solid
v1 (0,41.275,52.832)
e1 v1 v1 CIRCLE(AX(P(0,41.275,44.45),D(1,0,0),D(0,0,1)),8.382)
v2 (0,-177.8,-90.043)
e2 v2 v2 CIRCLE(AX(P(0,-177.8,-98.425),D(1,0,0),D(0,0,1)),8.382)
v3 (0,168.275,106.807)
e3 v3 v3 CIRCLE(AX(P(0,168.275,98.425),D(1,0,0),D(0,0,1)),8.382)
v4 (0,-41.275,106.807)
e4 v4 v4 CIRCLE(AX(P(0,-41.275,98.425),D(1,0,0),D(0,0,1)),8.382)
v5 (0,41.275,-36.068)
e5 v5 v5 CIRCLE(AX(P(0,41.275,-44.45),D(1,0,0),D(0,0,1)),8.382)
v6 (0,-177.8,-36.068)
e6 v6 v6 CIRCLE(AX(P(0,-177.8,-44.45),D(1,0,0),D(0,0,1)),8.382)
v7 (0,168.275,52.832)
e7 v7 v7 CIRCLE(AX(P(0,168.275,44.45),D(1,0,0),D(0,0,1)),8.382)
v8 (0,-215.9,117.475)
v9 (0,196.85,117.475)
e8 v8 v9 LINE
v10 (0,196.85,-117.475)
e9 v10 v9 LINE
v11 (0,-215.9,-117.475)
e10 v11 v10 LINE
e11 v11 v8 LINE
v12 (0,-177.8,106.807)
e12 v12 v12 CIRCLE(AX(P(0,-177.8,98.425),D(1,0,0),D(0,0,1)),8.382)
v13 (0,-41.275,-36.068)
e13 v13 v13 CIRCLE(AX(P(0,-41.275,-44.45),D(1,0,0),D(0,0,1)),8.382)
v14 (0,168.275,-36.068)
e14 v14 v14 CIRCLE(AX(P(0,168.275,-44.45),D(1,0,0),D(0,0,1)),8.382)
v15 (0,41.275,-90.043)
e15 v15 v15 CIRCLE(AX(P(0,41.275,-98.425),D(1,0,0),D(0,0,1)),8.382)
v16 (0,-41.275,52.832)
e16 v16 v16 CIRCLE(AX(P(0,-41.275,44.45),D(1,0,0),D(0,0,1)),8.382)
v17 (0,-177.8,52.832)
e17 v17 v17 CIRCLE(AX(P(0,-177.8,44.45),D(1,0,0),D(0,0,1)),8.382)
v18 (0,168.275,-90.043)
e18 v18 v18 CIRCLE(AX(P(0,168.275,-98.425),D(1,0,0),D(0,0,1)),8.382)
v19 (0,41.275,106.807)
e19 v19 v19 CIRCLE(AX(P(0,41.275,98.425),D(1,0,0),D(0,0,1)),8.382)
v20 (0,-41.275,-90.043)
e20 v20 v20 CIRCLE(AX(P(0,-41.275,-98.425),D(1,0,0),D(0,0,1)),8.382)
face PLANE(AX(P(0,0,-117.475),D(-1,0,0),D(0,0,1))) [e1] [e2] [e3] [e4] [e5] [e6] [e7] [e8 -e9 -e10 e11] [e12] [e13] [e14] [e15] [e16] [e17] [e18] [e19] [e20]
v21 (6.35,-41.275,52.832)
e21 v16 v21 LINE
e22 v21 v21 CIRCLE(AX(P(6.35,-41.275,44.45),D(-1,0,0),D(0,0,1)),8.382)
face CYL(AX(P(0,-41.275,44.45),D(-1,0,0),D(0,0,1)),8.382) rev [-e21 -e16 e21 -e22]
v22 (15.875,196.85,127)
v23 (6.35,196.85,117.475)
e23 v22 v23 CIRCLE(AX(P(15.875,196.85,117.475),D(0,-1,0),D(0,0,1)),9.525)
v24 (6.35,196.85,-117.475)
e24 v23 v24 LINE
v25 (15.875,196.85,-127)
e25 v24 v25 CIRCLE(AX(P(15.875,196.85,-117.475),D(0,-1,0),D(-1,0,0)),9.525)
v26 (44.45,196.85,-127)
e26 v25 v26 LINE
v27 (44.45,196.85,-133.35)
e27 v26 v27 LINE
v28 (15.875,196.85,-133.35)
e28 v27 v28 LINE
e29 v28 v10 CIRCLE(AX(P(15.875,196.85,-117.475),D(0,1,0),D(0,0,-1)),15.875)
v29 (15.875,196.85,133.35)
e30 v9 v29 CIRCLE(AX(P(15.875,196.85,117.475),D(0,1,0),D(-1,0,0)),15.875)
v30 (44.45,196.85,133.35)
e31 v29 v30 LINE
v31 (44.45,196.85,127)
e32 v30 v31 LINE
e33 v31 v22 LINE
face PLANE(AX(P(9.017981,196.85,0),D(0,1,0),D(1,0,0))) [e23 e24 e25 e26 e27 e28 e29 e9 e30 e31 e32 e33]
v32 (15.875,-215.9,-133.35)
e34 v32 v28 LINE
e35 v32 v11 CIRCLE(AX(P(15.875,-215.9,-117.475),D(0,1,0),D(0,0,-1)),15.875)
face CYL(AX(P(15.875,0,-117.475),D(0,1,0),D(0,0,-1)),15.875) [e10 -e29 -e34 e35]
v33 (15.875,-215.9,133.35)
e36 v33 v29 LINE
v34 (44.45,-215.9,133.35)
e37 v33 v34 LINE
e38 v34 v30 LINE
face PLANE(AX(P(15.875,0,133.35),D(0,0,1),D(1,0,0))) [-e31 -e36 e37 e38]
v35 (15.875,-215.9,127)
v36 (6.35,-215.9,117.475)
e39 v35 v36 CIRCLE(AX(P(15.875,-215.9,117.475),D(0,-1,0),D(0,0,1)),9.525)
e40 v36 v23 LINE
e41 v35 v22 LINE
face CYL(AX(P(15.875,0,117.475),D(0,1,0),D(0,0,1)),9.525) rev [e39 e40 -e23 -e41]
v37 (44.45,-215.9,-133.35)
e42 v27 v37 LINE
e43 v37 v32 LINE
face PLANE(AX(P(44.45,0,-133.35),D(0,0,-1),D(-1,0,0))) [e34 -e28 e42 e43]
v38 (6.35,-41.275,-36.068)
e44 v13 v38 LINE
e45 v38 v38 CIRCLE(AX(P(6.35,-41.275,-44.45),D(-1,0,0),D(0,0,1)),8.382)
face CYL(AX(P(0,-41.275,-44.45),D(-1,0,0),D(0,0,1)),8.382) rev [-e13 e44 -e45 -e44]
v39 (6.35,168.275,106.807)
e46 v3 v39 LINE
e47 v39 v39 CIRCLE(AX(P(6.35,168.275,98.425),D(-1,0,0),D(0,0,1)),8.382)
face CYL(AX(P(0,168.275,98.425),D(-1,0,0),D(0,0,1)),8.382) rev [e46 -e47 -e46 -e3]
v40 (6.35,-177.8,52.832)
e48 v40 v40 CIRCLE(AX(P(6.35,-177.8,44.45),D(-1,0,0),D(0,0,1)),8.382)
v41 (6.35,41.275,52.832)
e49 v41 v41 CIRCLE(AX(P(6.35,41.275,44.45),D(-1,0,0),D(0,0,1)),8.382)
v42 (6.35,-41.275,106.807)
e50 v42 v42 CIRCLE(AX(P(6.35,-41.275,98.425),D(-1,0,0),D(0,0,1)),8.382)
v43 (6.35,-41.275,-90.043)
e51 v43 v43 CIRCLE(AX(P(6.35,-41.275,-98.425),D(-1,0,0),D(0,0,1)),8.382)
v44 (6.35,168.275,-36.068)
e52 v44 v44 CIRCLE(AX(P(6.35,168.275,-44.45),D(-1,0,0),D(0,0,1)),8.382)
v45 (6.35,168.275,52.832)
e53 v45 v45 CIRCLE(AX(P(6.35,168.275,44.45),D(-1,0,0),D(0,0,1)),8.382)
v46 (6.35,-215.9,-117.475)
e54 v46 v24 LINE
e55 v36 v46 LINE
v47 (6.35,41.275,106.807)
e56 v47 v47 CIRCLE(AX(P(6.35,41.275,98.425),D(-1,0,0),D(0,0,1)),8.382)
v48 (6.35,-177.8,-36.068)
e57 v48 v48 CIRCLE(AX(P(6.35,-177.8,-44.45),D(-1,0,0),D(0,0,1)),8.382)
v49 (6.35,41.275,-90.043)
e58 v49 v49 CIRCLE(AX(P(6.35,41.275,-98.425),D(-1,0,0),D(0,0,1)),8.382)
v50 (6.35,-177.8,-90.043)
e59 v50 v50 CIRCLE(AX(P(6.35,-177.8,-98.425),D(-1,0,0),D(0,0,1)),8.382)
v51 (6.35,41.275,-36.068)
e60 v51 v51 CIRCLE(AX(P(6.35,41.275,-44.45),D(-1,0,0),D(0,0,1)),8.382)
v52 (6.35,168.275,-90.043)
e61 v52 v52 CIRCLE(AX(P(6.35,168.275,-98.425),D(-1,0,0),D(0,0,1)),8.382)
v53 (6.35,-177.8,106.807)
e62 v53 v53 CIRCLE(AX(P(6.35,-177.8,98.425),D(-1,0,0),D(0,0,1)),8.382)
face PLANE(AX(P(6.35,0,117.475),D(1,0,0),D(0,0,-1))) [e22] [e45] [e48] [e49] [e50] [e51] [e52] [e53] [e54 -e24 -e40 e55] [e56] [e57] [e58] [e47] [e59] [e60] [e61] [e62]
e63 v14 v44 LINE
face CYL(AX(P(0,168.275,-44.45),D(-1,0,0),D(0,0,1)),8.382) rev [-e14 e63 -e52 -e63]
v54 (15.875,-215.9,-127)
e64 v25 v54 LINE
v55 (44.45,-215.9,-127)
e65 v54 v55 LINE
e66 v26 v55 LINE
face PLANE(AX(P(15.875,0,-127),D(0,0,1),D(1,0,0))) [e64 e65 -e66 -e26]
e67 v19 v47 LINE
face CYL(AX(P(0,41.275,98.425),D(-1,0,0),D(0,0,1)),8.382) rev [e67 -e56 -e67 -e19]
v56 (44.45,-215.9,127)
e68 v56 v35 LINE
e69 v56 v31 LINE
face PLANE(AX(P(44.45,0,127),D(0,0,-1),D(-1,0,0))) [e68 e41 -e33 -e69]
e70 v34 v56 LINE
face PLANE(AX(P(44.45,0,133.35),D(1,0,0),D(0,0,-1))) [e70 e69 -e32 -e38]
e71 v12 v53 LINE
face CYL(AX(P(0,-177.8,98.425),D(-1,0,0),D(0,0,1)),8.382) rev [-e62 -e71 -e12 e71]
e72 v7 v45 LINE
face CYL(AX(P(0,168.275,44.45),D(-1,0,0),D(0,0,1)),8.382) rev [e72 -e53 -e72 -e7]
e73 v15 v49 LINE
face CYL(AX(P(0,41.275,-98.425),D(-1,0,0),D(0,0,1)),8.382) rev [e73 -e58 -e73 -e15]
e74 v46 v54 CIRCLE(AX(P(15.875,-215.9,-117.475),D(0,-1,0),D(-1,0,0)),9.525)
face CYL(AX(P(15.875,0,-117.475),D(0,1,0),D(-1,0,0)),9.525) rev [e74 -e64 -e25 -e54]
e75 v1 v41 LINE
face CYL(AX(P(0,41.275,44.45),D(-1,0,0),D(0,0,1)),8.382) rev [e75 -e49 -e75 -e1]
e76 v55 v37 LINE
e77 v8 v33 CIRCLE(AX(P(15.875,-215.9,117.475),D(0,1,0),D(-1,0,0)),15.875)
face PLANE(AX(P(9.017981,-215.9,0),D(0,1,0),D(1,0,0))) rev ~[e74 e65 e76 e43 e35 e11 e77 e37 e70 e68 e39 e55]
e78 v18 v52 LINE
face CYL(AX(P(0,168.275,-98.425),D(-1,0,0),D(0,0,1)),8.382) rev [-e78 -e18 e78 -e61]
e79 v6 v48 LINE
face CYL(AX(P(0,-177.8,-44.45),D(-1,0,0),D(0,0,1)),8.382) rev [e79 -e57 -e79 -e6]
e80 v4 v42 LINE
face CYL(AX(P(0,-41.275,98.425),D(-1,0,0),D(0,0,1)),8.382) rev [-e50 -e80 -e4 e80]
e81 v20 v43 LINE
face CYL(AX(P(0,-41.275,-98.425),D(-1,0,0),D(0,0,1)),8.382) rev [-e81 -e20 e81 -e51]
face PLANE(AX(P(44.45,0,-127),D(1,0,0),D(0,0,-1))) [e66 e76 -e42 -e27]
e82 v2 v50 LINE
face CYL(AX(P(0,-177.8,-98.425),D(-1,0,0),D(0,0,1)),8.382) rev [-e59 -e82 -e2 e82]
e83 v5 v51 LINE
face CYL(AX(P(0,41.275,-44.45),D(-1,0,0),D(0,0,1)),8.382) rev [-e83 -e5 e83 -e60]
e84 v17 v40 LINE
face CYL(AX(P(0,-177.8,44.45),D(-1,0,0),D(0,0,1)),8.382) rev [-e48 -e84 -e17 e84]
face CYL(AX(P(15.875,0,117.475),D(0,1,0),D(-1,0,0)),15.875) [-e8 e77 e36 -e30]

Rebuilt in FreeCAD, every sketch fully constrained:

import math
import FreeCAD as App
import Part
import Sketcher
from FreeCAD import Vector
Q = App.Units.Quantity

doc = App.newDocument("Part")
body = doc.addObject("PartDesign::Body", "Body")

sketch1 = doc.addObject("Sketcher::SketchObject", "Sketch")
body.addObject(sketch1)
sketch1.AttachmentSupport = (doc.XZ_Plane, [""])
sketch1.MapMode = "FlatFace"
sketch1.addGeometry([
    Part.LineSegment(Vector(44.45, -133.35, 0), Vector(15.875, -133.35, 0)),
    Part.ArcOfCircle(Part.Circle(Vector(15.875, -117.475, 0), Vector(0, 0, 1), 15.875), math.radians(-180), math.radians(-90)),
    Part.LineSegment(Vector(0, -117.475, 0), Vector(0, 117.475, 0)),
    Part.ArcOfCircle(Part.Circle(Vector(15.875, 117.475, 0), Vector(0, 0, 1), 15.875), math.radians(90), math.radians(180)),
    Part.LineSegment(Vector(15.875, 133.35, 0), Vector(44.45, 133.35, 0)),
    Part.LineSegment(Vector(44.45, 133.35, 0), Vector(44.45, 127, 0)),
    Part.LineSegment(Vector(44.45, 127, 0), Vector(15.875, 127, 0)),
    Part.ArcOfCircle(Part.Circle(Vector(15.875, 117.475, 0), Vector(0, 0, 1), 9.525), math.radians(90), math.radians(180)),
    Part.LineSegment(Vector(6.35, 117.475, 0), Vector(6.35, -117.475, 0)),
    Part.ArcOfCircle(Part.Circle(Vector(15.875, -117.475, 0), Vector(0, 0, 1), 9.525), math.radians(180), math.radians(270)),
    Part.LineSegment(Vector(15.875, -127, 0), Vector(44.45, -127, 0)),
    Part.LineSegment(Vector(44.45, -127, 0), Vector(44.45, -133.35, 0)),
], False)
sketch1.addConstraint([
    Sketcher.Constraint("Tangent", 0, 2, 1, 2),
    Sketcher.Constraint("Tangent", 1, 1, 2, 1),
    Sketcher.Constraint("Tangent", 2, 2, 3, 2),
    Sketcher.Constraint("Tangent", 3, 1, 4, 1),
    Sketcher.Constraint("Coincident", 4, 2, 5, 1),
    Sketcher.Constraint("Coincident", 5, 2, 6, 1),
    Sketcher.Constraint("Tangent", 6, 2, 7, 1),
    Sketcher.Constraint("Tangent", 7, 2, 8, 1),
    Sketcher.Constraint("Tangent", 8, 2, 9, 1),
    Sketcher.Constraint("Tangent", 9, 2, 10, 1),
    Sketcher.Constraint("Coincident", 10, 2, 11, 1),
    Sketcher.Constraint("Coincident", 11, 2, 0, 1),
    Sketcher.Constraint("Horizontal", 0),
    Sketcher.Constraint("Vertical", 2),
    Sketcher.Constraint("Horizontal", 4),
    Sketcher.Constraint("Vertical", 5),
    Sketcher.Constraint("Horizontal", 6),
    Sketcher.Constraint("Vertical", 8),
    Sketcher.Constraint("Horizontal", 10),
    Sketcher.Constraint("Vertical", 11),
    Sketcher.Constraint("Coincident", 7, 3, 3, 3),
    Sketcher.Constraint("Coincident", 9, 3, 1, 3),
    Sketcher.Constraint("Equal", 1, 3),
    Sketcher.Constraint("Symmetric", 1, 1, 2, 2, -1, 1),
    Sketcher.Constraint("Vertical", 5, 2, 10, 2),
    Sketcher.Constraint("DistanceY", -1, 1, 5, 2, Q("5 in")),
    Sketcher.Constraint("Radius", 1, Q("0.625 in")),
    Sketcher.Constraint("Radius", 7, Q("0.375 in")),
    Sketcher.Constraint("DistanceX", 8, 2, 10, 2, Q("1.5 in")),
])
pad1 = doc.addObject("PartDesign::Pad", "Pad")
body.addObject(pad1)
pad1.Profile = sketch1
pad1.Type = "TwoLengths"
pad1.Length = Q("7.75 in")
pad1.Length2 = Q("8.5 in")
pad1.Reversed = True

sketch2 = doc.addObject("Sketcher::SketchObject", "Sketch001")
body.addObject(sketch2)
sketch2.AttachmentSupport = (doc.YZ_Plane, [""])
sketch2.MapMode = "FlatFace"
sketch2.addGeometry([
    Part.Circle(Vector(168.275, -44.45, 0), Vector(0, 0, 1), 8.382),
    Part.Circle(Vector(41.275, -44.45, 0), Vector(0, 0, 1), 8.382),
    Part.Circle(Vector(-41.275, -44.45, 0), Vector(0, 0, 1), 8.382),
    Part.Circle(Vector(-177.8, -44.45, 0), Vector(0, 0, 1), 8.382),
    Part.Circle(Vector(-177.8, 44.45, 0), Vector(0, 0, 1), 8.382),
    Part.Circle(Vector(-177.8, 98.425, 0), Vector(0, 0, 1), 8.382),
    Part.Circle(Vector(-41.275, 98.425, 0), Vector(0, 0, 1), 8.382),
    Part.Circle(Vector(-41.275, 44.45, 0), Vector(0, 0, 1), 8.382),
    Part.Circle(Vector(41.275, 44.45, 0), Vector(0, 0, 1), 8.382),
    Part.Circle(Vector(41.275, 98.425, 0), Vector(0, 0, 1), 8.382),
    Part.Circle(Vector(168.275, 98.425, 0), Vector(0, 0, 1), 8.382),
    Part.Circle(Vector(168.275, 44.45, 0), Vector(0, 0, 1), 8.382),
    Part.Circle(Vector(-177.8, -98.425, 0), Vector(0, 0, 1), 8.382),
    Part.Circle(Vector(-41.275, -98.425, 0), Vector(0, 0, 1), 8.382),
    Part.Circle(Vector(41.275, -98.425, 0), Vector(0, 0, 1), 8.382),
    Part.Circle(Vector(168.275, -98.425, 0), Vector(0, 0, 1), 8.382),
], False)
sketch2.addConstraint([
    Sketcher.Constraint("Equal", 0, 1),
    Sketcher.Constraint("Equal", 1, 2),
    Sketcher.Constraint("Equal", 2, 3),
    Sketcher.Constraint("Equal", 3, 4),
    Sketcher.Constraint("Equal", 4, 5),
    Sketcher.Constraint("Equal", 5, 6),
    Sketcher.Constraint("Equal", 6, 7),
    Sketcher.Constraint("Equal", 7, 8),
    Sketcher.Constraint("Equal", 8, 9),
    Sketcher.Constraint("Equal", 9, 10),
    Sketcher.Constraint("Equal", 10, 11),
    Sketcher.Constraint("Equal", 11, 12),
    Sketcher.Constraint("Equal", 12, 13),
    Sketcher.Constraint("Equal", 13, 14),
    Sketcher.Constraint("Equal", 14, 15),
    Sketcher.Constraint("Symmetric", 1, 3, 7, 3, -1, 1),
    Sketcher.Constraint("Symmetric", 2, 3, 8, 3, -1, 1),
    Sketcher.Constraint("Symmetric", 9, 3, 13, 3, -1, 1),
    Sketcher.Constraint("Symmetric", 6, 3, 14, 3, -1, 1),
    Sketcher.Constraint("Symmetric", 1, 3, 2, 3, -2),
    Sketcher.Constraint("Symmetric", 6, 3, 9, 3, -2),
    Sketcher.Constraint("Symmetric", 3, 3, 4, 3, -1),
    Sketcher.Constraint("Symmetric", 0, 3, 11, 3, -1),
    Sketcher.Constraint("Symmetric", 5, 3, 12, 3, -1),
    Sketcher.Constraint("Symmetric", 10, 3, 15, 3, -1),
    Sketcher.Constraint("Horizontal", 0, 3, 1, 3),
    Sketcher.Constraint("Horizontal", 2, 3, 3, 3),
    Sketcher.Constraint("Horizontal", 5, 3, 6, 3),
    Sketcher.Constraint("Horizontal", 9, 3, 10, 3),
    Sketcher.Constraint("Vertical", 4, 3, 5, 3),
    Sketcher.Constraint("Vertical", 2, 3, 6, 3),
    Sketcher.Constraint("Vertical", 0, 3, 10, 3),
    Sketcher.Constraint("Diameter", 0, Q("0.66 in")),
    Sketcher.Constraint("DistanceX", 3, 3, -1, 1, Q("7 in")),
    Sketcher.Constraint("DistanceX", 1, 3, 0, 3, Q("5 in")),
    Sketcher.Constraint("DistanceY", 3, 3, 4, 3, Q("3.5 in")),
    Sketcher.Constraint("DistanceX", 2, 3, 1, 3, Q("3.25 in")),
    Sketcher.Constraint("DistanceY", 12, 3, 5, 3, Q("7.75 in")),
])
pocket1 = doc.addObject("PartDesign::Pocket", "Pocket")
body.addObject(pocket1)
pocket1.Profile = sketch2
pocket1.Type = "ThroughAll"
pocket1.Reversed = True

doc.recompute()
